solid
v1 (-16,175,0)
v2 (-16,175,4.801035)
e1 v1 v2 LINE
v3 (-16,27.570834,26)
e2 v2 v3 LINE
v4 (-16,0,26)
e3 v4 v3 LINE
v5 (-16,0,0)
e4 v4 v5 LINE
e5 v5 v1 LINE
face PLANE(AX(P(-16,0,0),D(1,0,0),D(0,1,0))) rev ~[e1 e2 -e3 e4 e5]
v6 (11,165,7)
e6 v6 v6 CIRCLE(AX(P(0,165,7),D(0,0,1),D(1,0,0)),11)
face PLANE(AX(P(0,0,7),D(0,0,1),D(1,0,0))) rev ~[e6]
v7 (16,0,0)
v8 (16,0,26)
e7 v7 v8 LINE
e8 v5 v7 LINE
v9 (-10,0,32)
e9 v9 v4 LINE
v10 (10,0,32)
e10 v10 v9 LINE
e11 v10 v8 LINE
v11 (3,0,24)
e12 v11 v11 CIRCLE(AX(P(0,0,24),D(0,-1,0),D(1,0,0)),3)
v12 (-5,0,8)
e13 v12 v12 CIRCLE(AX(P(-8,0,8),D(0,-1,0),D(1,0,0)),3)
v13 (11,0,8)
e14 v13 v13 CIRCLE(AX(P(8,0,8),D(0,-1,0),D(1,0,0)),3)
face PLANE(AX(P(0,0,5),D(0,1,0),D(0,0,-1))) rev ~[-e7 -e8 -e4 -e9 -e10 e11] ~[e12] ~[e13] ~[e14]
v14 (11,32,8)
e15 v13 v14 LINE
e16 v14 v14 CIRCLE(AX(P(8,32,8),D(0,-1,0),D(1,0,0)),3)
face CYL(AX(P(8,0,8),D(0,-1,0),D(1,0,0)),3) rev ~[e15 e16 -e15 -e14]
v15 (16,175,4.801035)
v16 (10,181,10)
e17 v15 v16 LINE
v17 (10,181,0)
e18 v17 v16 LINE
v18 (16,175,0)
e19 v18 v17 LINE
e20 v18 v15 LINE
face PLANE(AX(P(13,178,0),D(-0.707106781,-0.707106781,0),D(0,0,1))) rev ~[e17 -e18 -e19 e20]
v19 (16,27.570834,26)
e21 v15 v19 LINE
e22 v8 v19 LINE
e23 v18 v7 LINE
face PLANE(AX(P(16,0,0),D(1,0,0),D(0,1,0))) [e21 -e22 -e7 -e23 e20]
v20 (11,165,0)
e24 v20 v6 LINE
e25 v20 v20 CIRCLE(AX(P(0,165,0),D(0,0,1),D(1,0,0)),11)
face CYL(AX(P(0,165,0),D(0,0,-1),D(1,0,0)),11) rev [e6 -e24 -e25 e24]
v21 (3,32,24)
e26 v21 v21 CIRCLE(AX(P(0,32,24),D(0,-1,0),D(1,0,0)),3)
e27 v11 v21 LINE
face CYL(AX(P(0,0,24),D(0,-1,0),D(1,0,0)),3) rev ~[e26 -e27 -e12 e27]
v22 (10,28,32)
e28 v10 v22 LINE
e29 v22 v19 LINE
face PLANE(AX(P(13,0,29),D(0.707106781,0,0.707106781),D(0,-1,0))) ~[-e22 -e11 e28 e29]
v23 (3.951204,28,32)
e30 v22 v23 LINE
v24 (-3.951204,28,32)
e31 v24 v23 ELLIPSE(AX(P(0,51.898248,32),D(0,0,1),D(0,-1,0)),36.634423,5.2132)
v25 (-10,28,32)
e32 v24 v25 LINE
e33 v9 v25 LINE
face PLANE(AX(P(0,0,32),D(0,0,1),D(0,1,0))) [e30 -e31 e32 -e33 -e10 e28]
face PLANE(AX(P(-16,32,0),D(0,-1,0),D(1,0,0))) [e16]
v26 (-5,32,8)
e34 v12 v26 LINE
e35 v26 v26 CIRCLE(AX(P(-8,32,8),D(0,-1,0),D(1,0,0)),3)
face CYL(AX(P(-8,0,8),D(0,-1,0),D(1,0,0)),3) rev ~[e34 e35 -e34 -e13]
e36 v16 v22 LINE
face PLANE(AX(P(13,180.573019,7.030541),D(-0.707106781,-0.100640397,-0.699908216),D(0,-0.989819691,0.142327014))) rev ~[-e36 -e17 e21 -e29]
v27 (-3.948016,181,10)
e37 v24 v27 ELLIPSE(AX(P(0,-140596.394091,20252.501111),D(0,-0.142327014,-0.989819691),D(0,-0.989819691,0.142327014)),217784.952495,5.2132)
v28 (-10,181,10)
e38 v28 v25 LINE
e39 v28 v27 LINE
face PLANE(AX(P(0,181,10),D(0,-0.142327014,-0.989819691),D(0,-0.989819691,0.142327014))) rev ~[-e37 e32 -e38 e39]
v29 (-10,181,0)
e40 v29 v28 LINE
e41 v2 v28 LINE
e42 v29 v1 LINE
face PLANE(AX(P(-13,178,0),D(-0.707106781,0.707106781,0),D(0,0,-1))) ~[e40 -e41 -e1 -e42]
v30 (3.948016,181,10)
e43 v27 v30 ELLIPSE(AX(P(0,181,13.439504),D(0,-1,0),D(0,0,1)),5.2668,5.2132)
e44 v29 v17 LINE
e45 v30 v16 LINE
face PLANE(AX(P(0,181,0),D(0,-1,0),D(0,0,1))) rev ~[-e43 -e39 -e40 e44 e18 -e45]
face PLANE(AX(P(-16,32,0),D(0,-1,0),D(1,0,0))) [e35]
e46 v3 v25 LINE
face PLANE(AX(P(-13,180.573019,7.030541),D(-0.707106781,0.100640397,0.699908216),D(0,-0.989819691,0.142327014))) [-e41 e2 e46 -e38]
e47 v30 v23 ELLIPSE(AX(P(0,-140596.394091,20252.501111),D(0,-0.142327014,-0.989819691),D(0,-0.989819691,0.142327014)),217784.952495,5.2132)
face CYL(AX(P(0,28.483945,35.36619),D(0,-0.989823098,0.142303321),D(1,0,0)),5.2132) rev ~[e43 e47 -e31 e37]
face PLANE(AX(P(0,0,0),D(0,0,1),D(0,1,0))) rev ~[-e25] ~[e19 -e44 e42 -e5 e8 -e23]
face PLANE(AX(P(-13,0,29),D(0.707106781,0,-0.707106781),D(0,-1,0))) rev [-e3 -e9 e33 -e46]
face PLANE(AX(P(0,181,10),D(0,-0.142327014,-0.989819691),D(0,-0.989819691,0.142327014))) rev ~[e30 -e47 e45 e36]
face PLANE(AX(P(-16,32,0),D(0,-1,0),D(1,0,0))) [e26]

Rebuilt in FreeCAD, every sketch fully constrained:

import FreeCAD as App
import Part
import Sketcher
Q = App.Units.Quantity


def edges_at(feature, points):
    """Names of the edges that pass closest to the given points."""
    edges = feature.Shape.Edges
    near = lambda p: min(range(len(edges)), key=lambda i: edges[i].distToShape(Part.Vertex(*p))[0])
    return sorted({f"Edge{near(p) + 1}" for p in points})

doc = App.newDocument("Part")
body = doc.addObject("PartDesign::Body", "Body")

# Sketch on YZ plane
sketch1 = body.newObject("Sketcher::SketchObject", "Sketch")
sketch1.AttachmentSupport = (doc.getObject("YZ_Plane"), [""])
sketch1.MapMode = "FlatFace"
sketch1.addGeometry(Part.LineSegment(App.Vector(0, 0, 0), App.Vector(181, 0, 0)), False)
sketch1.addGeometry(Part.LineSegment(App.Vector(181, 0, 0), App.Vector(181, 10, 0)), False)
sketch1.addGeometry(Part.LineSegment(App.Vector(181, 10, 0), App.Vector(28, 32, 0)), False)
sketch1.addGeometry(Part.LineSegment(App.Vector(28, 32, 0), App.Vector(0, 32, 0)), False)
sketch1.addGeometry(Part.LineSegment(App.Vector(0, 32, 0), App.Vector(0, 0, 0)), False)
sketch1.addConstraint(Sketcher.Constraint("Coincident", 0, 2, 1, 1))
sketch1.addConstraint(Sketcher.Constraint("Coincident", 1, 2, 2, 1))
sketch1.addConstraint(Sketcher.Constraint("Coincident", 2, 2, 3, 1))
sketch1.addConstraint(Sketcher.Constraint("Coincident", 3, 2, 4, 1))
sketch1.addConstraint(Sketcher.Constraint("Coincident", 4, 2, 0, 1))
sketch1.addConstraint(Sketcher.Constraint("Horizontal", 0))
sketch1.addConstraint(Sketcher.Constraint("Vertical", 1))
sketch1.addConstraint(Sketcher.Constraint("Horizontal", 3))
sketch1.addConstraint(Sketcher.Constraint("Vertical", 4))
sketch1.addConstraint(Sketcher.Constraint("Coincident", 4, 2, -1, 1))
sketch1.addConstraint(Sketcher.Constraint("DistanceY", 1, 1, 1, 2, Q("10 mm")))
sketch1.addConstraint(Sketcher.Constraint("DistanceY", 4, 2, 4, 1, Q("32 mm")))
sketch1.addConstraint(Sketcher.Constraint("DistanceX", 0, 1, 0, 2, Q("181 mm")))
sketch1.addConstraint(Sketcher.Constraint("DistanceX", 3, 2, 3, 1, Q("28 mm")))
pad1 = body.newObject("PartDesign::Pad", "Pad")
pad1.Profile = sketch1
pad1.Length = 32
pad1.Midplane = True
doc.recompute()

chamfer = body.newObject("PartDesign::Chamfer", "Chamfer")
chamfer.Base = (pad1, edges_at(pad1, [
    (-16, 104.5, 21),
    (-16, 14, 32),
    (16, 14, 32),
    (16, 104.5, 21),
    (-16, 181, 5),
    (16, 181, 5),
]))
chamfer.Size = 6

# Sketch on XY plane
sketch2 = body.newObject("Sketcher::SketchObject", "Sketch001")
sketch2.AttachmentSupport = (doc.getObject("XY_Plane"), [""])
sketch2.MapMode = "FlatFace"
sketch2.addGeometry(Part.Circle(App.Vector(0, 165, 0), App.Vector(0, 0, 1), 11), False)
sketch2.addConstraint(Sketcher.Constraint("PointOnObject", 0, 3, -2))
sketch2.addConstraint(Sketcher.Constraint("Diameter", 0, Q("22 mm")))
sketch2.addConstraint(Sketcher.Constraint("DistanceY", -1, 1, 0, 3, Q("165 mm")))
pocket1 = body.newObject("PartDesign::Pocket", "Pocket")
pocket1.Profile = sketch2
pocket1.Length = 7
pocket1.Reversed = True

# Sketch on an angled plane
sketch3 = body.newObject("Sketcher::SketchObject", "Sketch002")
sketch3.Placement = App.Placement(App.Vector(0, 28, 32), App.Rotation(App.Vector(1, 0, 0), App.Vector(0, 0.142303321, 0.989823098), App.Vector(0, -0.989823098, 0.142303321), "ZXY"))
sketch3.addGeometry(Part.Circle(App.Vector(0, 3, 0), App.Vector(0, 0, 1), 5), False)
sketch3.addConstraint(Sketcher.Constraint("PointOnObject", 0, 3, -2))
sketch3.addConstraint(Sketcher.Constraint("Diameter", 0, Q("10.4264 mm")))
sketch3.addConstraint(Sketcher.Constraint("DistanceY", -1, 1, 0, 3, Q("3.4008 mm")))
pocket2 = body.newObject("PartDesign::Pocket", "Pocket001")
pocket2.Profile = sketch3
pocket2.Type = "ThroughAll"
pocket2.Midplane = True

# Sketch on XZ plane
sketch4 = body.newObject("Sketcher::SketchObject", "Sketch003")
sketch4.AttachmentSupport = (doc.getObject("XZ_Plane"), [""])
sketch4.MapMode = "FlatFace"
sketch4.addGeometry(Part.Circle(App.Vector(-8, 8, 0), App.Vector(0, 0, 1), 3), False)
sketch4.addGeometry(Part.Circle(App.Vector(8, 8, 0), App.Vector(0, 0, 1), 3), False)
sketch4.addGeometry(Part.Circle(App.Vector(0, 24, 0), App.Vector(0, 0, 1), 3), False)
sketch4.addConstraint(Sketcher.Constraint("Equal", 0, 1))
sketch4.addConstraint(Sketcher.Constraint("Equal", 1, 2))
sketch4.addConstraint(Sketcher.Constraint("Symmetric", 0, 3, 1, 3, -2))
sketch4.addConstraint(Sketcher.Constraint("PointOnObject", 2, 3, -2))
sketch4.addConstraint(Sketcher.Constraint("Diameter", 0, Q("6 mm")))
sketch4.addConstraint(Sketcher.Constraint("DistanceX", 0, 3, -1, 1, Q("8 mm")))
sketch4.addConstraint(Sketcher.Constraint("DistanceY", -1, 1, 0, 3, Q("8 mm")))
sketch4.addConstraint(Sketcher.Constraint("DistanceY", 0, 3, 2, 3, Q("16 mm")))
pocket3 = body.newObject("PartDesign::Pocket", "Pocket002")
pocket3.Profile = sketch4
pocket3.Length = 32

doc.recompute()
